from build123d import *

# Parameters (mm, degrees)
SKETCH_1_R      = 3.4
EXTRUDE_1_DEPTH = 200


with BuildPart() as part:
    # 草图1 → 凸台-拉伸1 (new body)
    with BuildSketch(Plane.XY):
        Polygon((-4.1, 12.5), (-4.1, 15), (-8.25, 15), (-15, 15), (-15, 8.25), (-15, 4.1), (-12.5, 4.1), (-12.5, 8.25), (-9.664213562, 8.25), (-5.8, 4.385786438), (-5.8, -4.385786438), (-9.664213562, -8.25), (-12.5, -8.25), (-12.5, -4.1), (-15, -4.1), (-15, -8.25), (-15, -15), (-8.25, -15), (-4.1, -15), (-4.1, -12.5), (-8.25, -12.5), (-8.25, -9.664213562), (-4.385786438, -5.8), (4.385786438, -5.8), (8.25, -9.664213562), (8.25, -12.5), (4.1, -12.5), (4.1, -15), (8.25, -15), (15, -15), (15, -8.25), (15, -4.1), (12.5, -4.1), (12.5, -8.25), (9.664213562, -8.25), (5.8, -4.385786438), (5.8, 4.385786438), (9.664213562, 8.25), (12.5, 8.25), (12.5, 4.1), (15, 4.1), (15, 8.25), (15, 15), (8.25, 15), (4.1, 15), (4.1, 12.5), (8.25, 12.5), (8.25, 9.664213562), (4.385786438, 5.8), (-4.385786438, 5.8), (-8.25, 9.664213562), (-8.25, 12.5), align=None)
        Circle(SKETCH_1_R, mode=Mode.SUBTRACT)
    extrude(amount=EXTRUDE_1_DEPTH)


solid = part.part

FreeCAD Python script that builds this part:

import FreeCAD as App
import Part
import Sketcher

doc = App.newDocument("Part")
body = doc.addObject("PartDesign::Body", "Body")

# Sketch on XY plane
sketch1 = body.newObject("Sketcher::SketchObject", "Sketch")
sketch1.AttachmentSupport = (doc.getObject("XY_Plane"), [""])
sketch1.MapMode = "FlatFace"
sketch1.addGeometry(Part.LineSegment(App.Vector(-4.1, 12.5, 0), App.Vector(-4.1, 15, 0)), False)
sketch1.addGeometry(Part.LineSegment(App.Vector(-4.1, 15, 0), App.Vector(-15, 15, 0)), False)
sketch1.addGeometry(Part.LineSegment(App.Vector(-15, 15, 0), App.Vector(-15, 4.1, 0)), False)
sketch1.addGeometry(Part.LineSegment(App.Vector(-15, 4.1, 0), App.Vector(-12.5, 4.1, 0)), False)
sketch1.addGeometry(Part.LineSegment(App.Vector(-12.5, 4.1, 0), App.Vector(-12.5, 8.2, 0)), False)
sketch1.addGeometry(Part.LineSegment(App.Vector(-12.5, 8.2, 0), App.Vector(-9.7, 8.2, 0)), False)
sketch1.addGeometry(Part.LineSegment(App.Vector(-9.7, 8.2, 0), App.Vector(-5.8, 4.4, 0)), False)
sketch1.addGeometry(Part.LineSegment(App.Vector(-5.8, 4.4, 0), App.Vector(-5.8, -4.4, 0)), False)
sketch1.addGeometry(Part.LineSegment(App.Vector(-5.8, -4.4, 0), App.Vector(-9.7, -8.2, 0)), False)
sketch1.addGeometry(Part.LineSegment(App.Vector(-9.7, -8.2, 0), App.Vector(-12.5, -8.2, 0)), False)
sketch1.addGeometry(Part.LineSegment(App.Vector(-12.5, -8.2, 0), App.Vector(-12.5, -4.1, 0)), False)
sketch1.addGeometry(Part.LineSegment(App.Vector(-12.5, -4.1, 0), App.Vector(-15, -4.1, 0)), False)
sketch1.addGeometry(Part.LineSegment(App.Vector(-15, -4.1, 0), App.Vector(-15, -15, 0)), False)
sketch1.addGeometry(Part.LineSegment(App.Vector(-15, -15, 0), App.Vector(-4.1, -15, 0)), False)
sketch1.addGeometry(Part.LineSegment(App.Vector(-4.1, -15, 0), App.Vector(-4.1, -12.5, 0)), False)
sketch1.addGeometry(Part.LineSegment(App.Vector(-4.1, -12.5, 0), App.Vector(-8.2, -12.5, 0)), False)
sketch1.addGeometry(Part.LineSegment(App.Vector(-8.2, -12.5, 0), App.Vector(-8.2, -9.7, 0)), False)
sketch1.addGeometry(Part.LineSegment(App.Vector(-8.2, -9.7, 0), App.Vector(-4.4, -5.8, 0)), False)
sketch1.addGeometry(Part.LineSegment(App.Vector(-4.4, -5.8, 0), App.Vector(4.4, -5.8, 0)), False)
sketch1.addGeometry(Part.LineSegment(App.Vector(4.4, -5.8, 0), App.Vector(8.2, -9.7, 0)), False)
sketch1.addGeometry(Part.LineSegment(App.Vector(8.2, -9.7, 0), App.Vector(8.2, -12.5, 0)), False)
sketch1.addGeometry(Part.LineSegment(App.Vector(8.2, -12.5, 0), App.Vector(4.1, -12.5, 0)), False)
sketch1.addGeometry(Part.LineSegment(App.Vector(4.1, -12.5, 0), App.Vector(4.1, -15, 0)), False)
sketch1.addGeometry(Part.LineSegment(App.Vector(4.1, -15, 0), App.Vector(15, -15, 0)), False)
sketch1.addGeometry(Part.LineSegment(App.Vector(15, -15, 0), App.Vector(15, -4.1, 0)), False)
sketch1.addGeometry(Part.LineSegment(App.Vector(15, -4.1, 0), App.Vector(12.5, -4.1, 0)), False)
sketch1.addGeometry(Part.LineSegment(App.Vector(12.5, -4.1, 0), App.Vector(12.5, -8.2, 0)), False)
sketch1.addGeometry(Part.LineSegment(App.Vector(12.5, -8.2, 0), App.Vector(9.7, -8.2, 0)), False)
sketch1.addGeometry(Part.LineSegment(App.Vector(9.7, -8.2, 0), App.Vector(5.8, -4.4, 0)), False)
sketch1.addGeometry(Part.LineSegment(App.Vector(5.8, -4.4, 0), App.Vector(5.8, 4.4, 0)), False)
sketch1.addGeometry(Part.LineSegment(App.Vector(5.8, 4.4, 0), App.Vector(9.7, 8.2, 0)), False)
sketch1.addGeometry(Part.LineSegment(App.Vector(9.7, 8.2, 0), App.Vector(12.5, 8.2, 0)), False)
sketch1.addGeometry(Part.LineSegment(App.Vector(12.5, 8.2, 0), App.Vector(12.5, 4.1, 0)), False)
sketch1.addGeometry(Part.LineSegment(App.Vector(12.5, 4.1, 0), App.Vector(15, 4.1, 0)), False)
sketch1.addGeometry(Part.LineSegment(App.Vector(15, 4.1, 0), App.Vector(15, 15, 0)), False)
sketch1.addGeometry(Part.LineSegment(App.Vector(15, 15, 0), App.Vector(4.1, 15, 0)), False)
sketch1.addGeometry(Part.LineSegment(App.Vector(4.1, 15, 0), App.Vector(4.1, 12.5, 0)), False)
sketch1.addGeometry(Part.LineSegment(App.Vector(4.1, 12.5, 0), App.Vector(8.2, 12.5, 0)), False)
sketch1.addGeometry(Part.LineSegment(App.Vector(8.2, 12.5, 0), App.Vector(8.2, 9.7, 0)), False)
sketch1.addGeometry(Part.LineSegment(App.Vector(8.2, 9.7, 0), App.Vector(4.4, 5.8, 0)), False)
sketch1.addGeometry(Part.LineSegment(App.Vector(4.4, 5.8, 0), App.Vector(-4.4, 5.8, 0)), False)
sketch1.addGeometry(Part.LineSegment(App.Vector(-4.4, 5.8, 0), App.Vector(-8.2, 9.7, 0)), False)
sketch1.addGeometry(Part.LineSegment(App.Vector(-8.2, 9.7, 0), App.Vector(-8.2, 12.5, 0)), False)
sketch1.addGeometry(Part.LineSegment(App.Vector(-8.2, 12.5, 0), App.Vector(-4.1, 12.5, 0)), False)
sketch1.addGeometry(Part.Circle(App.Vector(0, 0, 0), App.Vector(0, 0, 1), 3.4), False)
sketch1.addConstraint(Sketcher.Constraint("Coincident", 0, 2, 1, 1))
sketch1.addConstraint(Sketcher.Constraint("Coincident", 1, 2, 2, 1))
sketch1.addConstraint(Sketcher.Constraint("Coincident", 2, 2, 3, 1))
sketch1.addConstraint(Sketcher.Constraint("Coincident", 3, 2, 4, 1))
sketch1.addConstraint(Sketcher.Constraint("Coincident", 4, 2, 5, 1))
sketch1.addConstraint(Sketcher.Constraint("Coincident", 5, 2, 6, 1))
sketch1.addConstraint(Sketcher.Constraint("Coincident", 6, 2, 7, 1))
sketch1.addConstraint(Sketcher.Constraint("Coincident", 7, 2, 8, 1))
sketch1.addConstraint(Sketcher.Constraint("Coincident", 8, 2, 9, 1))
sketch1.addConstraint(Sketcher.Constraint("Coincident", 9, 2, 10, 1))
sketch1.addConstraint(Sketcher.Constraint("Coincident", 10, 2, 11, 1))
sketch1.addConstraint(Sketcher.Constraint("Coincident", 11, 2, 12, 1))
sketch1.addConstraint(Sketcher.Constraint("Coincident", 12, 2, 13, 1))
sketch1.addConstraint(Sketcher.Constraint("Coincident", 13, 2, 14, 1))
sketch1.addConstraint(Sketcher.Constraint("Coincident", 14, 2, 15, 1))
sketch1.addConstraint(Sketcher.Constraint("Coincident", 15, 2, 16, 1))
sketch1.addConstraint(Sketcher.Constraint("Coincident", 16, 2, 17, 1))
sketch1.addConstraint(Sketcher.Constraint("Coincident", 17, 2, 18, 1))
sketch1.addConstraint(Sketcher.Constraint("Coincident", 18, 2, 19, 1))
sketch1.addConstraint(Sketcher.Constraint("Coincident", 19, 2, 20, 1))
sketch1.addConstraint(Sketcher.Constraint("Coincident", 20, 2, 21, 1))
sketch1.addConstraint(Sketcher.Constraint("Coincident", 21, 2, 22, 1))
sketch1.addConstraint(Sketcher.Constraint("Coincident", 22, 2, 23, 1))
sketch1.addConstraint(Sketcher.Constraint("Coincident", 23, 2, 24, 1))
sketch1.addConstraint(Sketcher.Constraint("Coincident", 24, 2, 25, 1))
sketch1.addConstraint(Sketcher.Constraint("Coincident", 25, 2, 26, 1))
sketch1.addConstraint(Sketcher.Constraint("Coincident", 26, 2, 27, 1))
sketch1.addConstraint(Sketcher.Constraint("Coincident", 27, 2, 28, 1))
sketch1.addConstraint(Sketcher.Constraint("Coincident", 28, 2, 29, 1))
sketch1.addConstraint(Sketcher.Constraint("Coincident", 29, 2, 30, 1))
sketch1.addConstraint(Sketcher.Constraint("Coincident", 30, 2, 31, 1))
sketch1.addConstraint(Sketcher.Constraint("Coincident", 31, 2, 32, 1))
sketch1.addConstraint(Sketcher.Constraint("Coincident", 32, 2, 33, 1))
sketch1.addConstraint(Sketcher.Constraint("Coincident", 33, 2, 34, 1))
sketch1.addConstraint(Sketcher.Constraint("Coincident", 34, 2, 35, 1))
sketch1.addConstraint(Sketcher.Constraint("Coincident", 35, 2, 36, 1))
sketch1.addConstraint(Sketcher.Constraint("Coincident", 36, 2, 37, 1))
sketch1.addConstraint(Sketcher.Constraint("Coincident", 37, 2, 38, 1))
sketch1.addConstraint(Sketcher.Constraint("Coincident", 38, 2, 39, 1))
sketch1.addConstraint(Sketcher.Constraint("Coincident", 39, 2, 40, 1))
sketch1.addConstraint(Sketcher.Constraint("Coincident", 40, 2, 41, 1))
sketch1.addConstraint(Sketcher.Constraint("Coincident", 41, 2, 42, 1))
sketch1.addConstraint(Sketcher.Constraint("Coincident", 42, 2, 43, 1))
sketch1.addConstraint(Sketcher.Constraint("Coincident", 43, 2, 0, 1))
sketch1.addConstraint(Sketcher.Constraint("Vertical", 0))
sketch1.addConstraint(Sketcher.Constraint("Horizontal", 1))
sketch1.addConstraint(Sketcher.Constraint("Vertical", 2))
sketch1.addConstraint(Sketcher.Constraint("Horizontal", 3))
sketch1.addConstraint(Sketcher.Constraint("Vertical", 4))
sketch1.addConstraint(Sketcher.Constraint("Horizontal", 5))
sketch1.addConstraint(Sketcher.Constraint("Vertical", 7))
sketch1.addConstraint(Sketcher.Constraint("Horizontal", 9))
sketch1.addConstraint(Sketcher.Constraint("Vertical", 10))
sketch1.addConstraint(Sketcher.Constraint("Horizontal", 11))
sketch1.addConstraint(Sketcher.Constraint("Vertical", 12))
sketch1.addConstraint(Sketcher.Constraint("Horizontal", 13))
sketch1.addConstraint(Sketcher.Constraint("Vertical", 14))
sketch1.addConstraint(Sketcher.Constraint("Horizontal", 15))
sketch1.addConstraint(Sketcher.Constraint("Vertical", 16))
sketch1.addConstraint(Sketcher.Constraint("Horizontal", 18))
sketch1.addConstraint(Sketcher.Constraint("Vertical", 20))
sketch1.addConstraint(Sketcher.Constraint("Horizontal", 21))
sketch1.addConstraint(Sketcher.Constraint("Vertical", 22))
sketch1.addConstraint(Sketcher.Constraint("Horizontal", 23))
sketch1.addConstraint(Sketcher.Constraint("Vertical", 24))
sketch1.addConstraint(Sketcher.Constraint("Horizontal", 25))
sketch1.addConstraint(Sketcher.Constraint("Vertical", 26))
sketch1.addConstraint(Sketcher.Constraint("Horizontal", 27))
sketch1.addConstraint(Sketcher.Constraint("Vertical", 29))
sketch1.addConstraint(Sketcher.Constraint("Horizontal", 31))
sketch1.addConstraint(Sketcher.Constraint("Vertical", 32))
sketch1.addConstraint(Sketcher.Constraint("Horizontal", 33))
sketch1.addConstraint(Sketcher.Constraint("Vertical", 34))
sketch1.addConstraint(Sketcher.Constraint("Horizontal", 35))
sketch1.addConstraint(Sketcher.Constraint("Vertical", 36))
sketch1.addConstraint(Sketcher.Constraint("Horizontal", 37))
sketch1.addConstraint(Sketcher.Constraint("Vertical", 38))
sketch1.addConstraint(Sketcher.Constraint("Horizontal", 40))
sketch1.addConstraint(Sketcher.Constraint("Vertical", 42))
sketch1.addConstraint(Sketcher.Constraint("Horizontal", 43))
sketch1.addConstraint(Sketcher.Constraint("Coincident", 44, 3, -1, 1))
sketch1.addConstraint(Sketcher.Constraint("Symmetric", 0, 2, 22, 2, -1, 1))
sketch1.addConstraint(Sketcher.Constraint("Symmetric", 2, 2, 24, 2, -1, 1))
sketch1.addConstraint(Sketcher.Constraint("Symmetric", 4, 2, 26, 2, -1, 1))
sketch1.addConstraint(Sketcher.Constraint("Symmetric", 6, 2, 28, 2, -1, 1))
sketch1.addConstraint(Sketcher.Constraint("Symmetric", 8, 2, 30, 2, -1, 1))
sketch1.addConstraint(Sketcher.Constraint("Symmetric", 10, 2, 32, 2, -1, 1))
sketch1.addConstraint(Sketcher.Constraint("Symmetric", 12, 2, 34, 2, -1, 1))
sketch1.addConstraint(Sketcher.Constraint("Symmetric", 14, 2, 36, 2, -1, 1))
sketch1.addConstraint(Sketcher.Constraint("Symmetric", 16, 2, 38, 2, -1, 1))
sketch1.addConstraint(Sketcher.Constraint("Symmetric", 17, 2, 39, 2, -1, 1))
sketch1.addConstraint(Sketcher.Constraint("Symmetric", 19, 2, 41, 2, -1, 1))
sketch1.addConstraint(Sketcher.Constraint("Symmetric", 16, 2, 19, 2, -2))
sketch1.addConstraint(Sketcher.Constraint("Symmetric", 14, 2, 21, 2, -2))
sketch1.addConstraint(Sketcher.Constraint("Symmetric", 12, 2, 23, 2, -2))
sketch1.addConstraint(Sketcher.Constraint("Symmetric", 10, 2, 25, 2, -2))
sketch1.addConstraint(Sketcher.Constraint("Symmetric", 8, 2, 27, 2, -2))
sketch1.addConstraint(Sketcher.Constraint("Perpendicular", 6, 8))
sketch1.addConstraint(Sketcher.Constraint("Parallel", 8, 17))
sketch1.addConstraint(Sketcher.Constraint("Perpendicular", 17, 19))
sketch1.addConstraint(Sketcher.Constraint("Parallel", 19, 28))
sketch1.addConstraint(Sketcher.Constraint("Perpendicular", 28, 30))
sketch1.addConstraint(Sketcher.Constraint("Perpendicular", 39, 41))
sketch1.addConstraint(Sketcher.Constraint("Horizontal", 7, 2, 28, 2))
sketch1.addConstraint(Sketcher.Constraint("Horizontal", 37, 2, 42, 2))
sketch1.addConstraint(Sketcher.Constraint("Equal", 33, 0))
sketch1.addConstraint(Sketcher.Constraint("Equal", 35, 2))
sketch1.addConstraint(Sketcher.Constraint("Equal", 43, 4))
sketch1.addConstraint(Sketcher.Constraint("Equal", 40, 7))
sketch1.addConstraint(Sketcher.Constraint("Equal", 31, 16))
sketch1.addConstraint(Sketcher.Constraint("Equal", 8, 17))
sketch1.addConstraint(Sketcher.Constraint("Diameter", 44, 6.8))
sketch1.addConstraint(Sketcher.Constraint("DistanceX", 1, 2, 1, 1, 10.9))
sketch1.addConstraint(Sketcher.Constraint("DistanceX", 3, 1, 3, 2, 2.5))
sketch1.addConstraint(Sketcher.Constraint("DistanceY", -1, 1, 0, 2, 15.0))
sketch1.addConstraint(Sketcher.Constraint("DistanceX", 15, 2, 15, 1, 4.15))
sketch1.addConstraint(Sketcher.Constraint("DistanceX", 6, 2, -1, 1, 5.8))
sketch1.addConstraint(Sketcher.Constraint("DistanceX", 5, 1, 5, 2, 2.835786))
pad1 = body.newObject("PartDesign::Pad", "Pad")
pad1.Profile = sketch1
pad1.Length = 200

doc.recompute()
